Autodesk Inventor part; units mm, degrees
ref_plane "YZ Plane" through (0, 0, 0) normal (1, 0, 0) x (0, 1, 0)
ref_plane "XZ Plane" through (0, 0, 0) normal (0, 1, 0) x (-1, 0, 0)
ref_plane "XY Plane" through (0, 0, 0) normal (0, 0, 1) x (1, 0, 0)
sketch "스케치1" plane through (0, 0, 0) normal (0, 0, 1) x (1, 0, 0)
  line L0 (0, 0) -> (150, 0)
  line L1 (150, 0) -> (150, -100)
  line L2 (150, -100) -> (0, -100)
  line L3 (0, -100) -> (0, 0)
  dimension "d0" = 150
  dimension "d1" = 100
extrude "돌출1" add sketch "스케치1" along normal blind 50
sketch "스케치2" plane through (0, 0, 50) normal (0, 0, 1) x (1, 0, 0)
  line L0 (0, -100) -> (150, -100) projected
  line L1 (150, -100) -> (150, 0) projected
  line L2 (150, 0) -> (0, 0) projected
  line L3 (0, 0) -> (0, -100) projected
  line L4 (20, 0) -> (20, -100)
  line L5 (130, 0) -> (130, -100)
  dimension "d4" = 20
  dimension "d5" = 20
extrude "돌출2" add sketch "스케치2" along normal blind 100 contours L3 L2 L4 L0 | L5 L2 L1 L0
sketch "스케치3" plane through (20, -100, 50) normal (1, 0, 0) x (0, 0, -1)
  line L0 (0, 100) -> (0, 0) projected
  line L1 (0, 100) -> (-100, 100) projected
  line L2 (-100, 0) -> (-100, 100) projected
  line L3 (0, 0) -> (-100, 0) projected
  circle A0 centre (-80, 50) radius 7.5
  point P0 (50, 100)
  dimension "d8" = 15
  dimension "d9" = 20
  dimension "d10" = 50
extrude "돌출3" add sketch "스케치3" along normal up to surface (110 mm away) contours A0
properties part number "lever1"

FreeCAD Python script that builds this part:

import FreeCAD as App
import Part
import Sketcher
from FreeCAD import Vector


def add_polygon(sketch, points):
    """Adds a closed chain of lines whose ends are joined by coincident constraints."""
    first, n = sketch.GeometryCount, len(points)
    for a, b in zip(points, points[1:] + points[:1]):
        sketch.addGeometry(Part.LineSegment(App.Vector(*a, 0), App.Vector(*b, 0)), False)
    for i in range(n):
        sketch.addConstraint(Sketcher.Constraint("Coincident", first + i, 2, first + (i + 1) % n, 1))

doc = App.newDocument("Part")
body = doc.addObject("PartDesign::Body", "Body")

sketch1 = body.newObject("Sketcher::SketchObject", "Sketch")
sketch1.AttachmentSupport = (doc.getObject("XY_Plane"), [""])
sketch1.MapMode = "FlatFace"
add_polygon(sketch1, [(150, 0), (0, 0), (0, -100), (150, -100)])
sketch1.addConstraint([
    Sketcher.Constraint("Horizontal", 0),
    Sketcher.Constraint("Vertical", 1),
    Sketcher.Constraint("Horizontal", 2),
    Sketcher.Constraint("Vertical", 3),
    Sketcher.Constraint("Coincident", 0, 2, -1, 1),
    Sketcher.Constraint("DistanceX", 0, 2, 0, 1, 150.0),
    Sketcher.Constraint("DistanceY", 1, 2, 1, 1, 100.0),
])
pad1 = body.newObject("PartDesign::Pad", "Pad")
pad1.Profile = sketch1
pad1.Length = 50

sketch2 = body.newObject("Sketcher::SketchObject", "Sketch001")
sketch2.AttachmentSupport = (doc.getObject("XY_Plane"), [""])
sketch2.MapMode = "FlatFace"
sketch2.AttachmentOffset = App.Placement(Vector(0, 0, 50), App.Rotation())
add_polygon(sketch2, [(0, 0), (0, -100), (20, -100), (20, 0)])
add_polygon(sketch2, [(130, 0), (130, -100), (150, -100), (150, 0)])
sketch2.addConstraint([
    Sketcher.Constraint("Vertical", 0),
    Sketcher.Constraint("Horizontal", 1),
    Sketcher.Constraint("Vertical", 2),
    Sketcher.Constraint("Horizontal", 3),
    Sketcher.Constraint("Vertical", 4),
    Sketcher.Constraint("Horizontal", 5),
    Sketcher.Constraint("Vertical", 6),
    Sketcher.Constraint("Horizontal", 7),
    Sketcher.Constraint("Coincident", 3, 2, -1, 1),
    Sketcher.Constraint("PointOnObject", 6, 2, -1),
    Sketcher.Constraint("Horizontal", 1, 2, 4, 2),
    Sketcher.Constraint("Equal", 3, 5),
    Sketcher.Constraint("DistanceX", 1, 1, 1, 2, 20.0),
    Sketcher.Constraint("DistanceY", 0, 2, 0, 1, 100.0),
    Sketcher.Constraint("DistanceX", -1, 1, 4, 2, 130.0),
])
pad2 = body.newObject("PartDesign::Pad", "Pad001")
pad2.Profile = sketch2
pad2.Length = 100

sketch3 = body.newObject("Sketcher::SketchObject", "Sketch002")
sketch3.AttachmentSupport = (doc.getObject("YZ_Plane"), [""])
sketch3.MapMode = "FlatFace"
sketch3.AttachmentOffset = App.Placement(Vector(0, 0, 20), App.Rotation())
sketch3.addGeometry(Part.Circle(Vector(-50, 130, 0), Vector(0, 0, 1), 8), False)
sketch3.addConstraint([
    Sketcher.Constraint("Diameter", 0, 15.0),
    Sketcher.Constraint("DistanceX", 0, 3, -1, 1, 50.0),
    Sketcher.Constraint("DistanceY", -1, 1, 0, 3, 130.0),
])
pad3 = body.newObject("PartDesign::Pad", "Pad002")
pad3.Profile = sketch3
pad3.Length = 110

doc.recompute()
